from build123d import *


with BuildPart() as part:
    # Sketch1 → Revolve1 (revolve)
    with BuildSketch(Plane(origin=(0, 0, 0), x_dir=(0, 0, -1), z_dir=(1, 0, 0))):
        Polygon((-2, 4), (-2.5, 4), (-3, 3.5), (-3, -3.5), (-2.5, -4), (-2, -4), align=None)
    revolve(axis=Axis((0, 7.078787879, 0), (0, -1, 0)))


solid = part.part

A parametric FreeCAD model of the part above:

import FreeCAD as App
import Part
import Sketcher
from FreeCAD import Vector

doc = App.newDocument("Part")
body = doc.addObject("PartDesign::Body", "Body")

sketch1 = body.newObject("Sketcher::SketchObject", "Sketch")
sketch1.AttachmentSupport = (doc.getObject("YZ_Plane"), [""])
sketch1.MapMode = "FlatFace"
sketch1.addGeometry([
    Part.LineSegment(Vector(4, 2, 0), Vector(4, 2.5, 0)),
    Part.LineSegment(Vector(4, 2.5, 0), Vector(3.5, 3, 0)),
    Part.LineSegment(Vector(3.5, 3, 0), Vector(-3.5, 3, 0)),
    Part.LineSegment(Vector(-3.5, 3, 0), Vector(-4, 2.5, 0)),
    Part.LineSegment(Vector(-4, 2.5, 0), Vector(-4, 2, 0)),
    Part.LineSegment(Vector(-4, 2, 0), Vector(4, 2, 0)),
], False)
sketch1.addConstraint([
    Sketcher.Constraint("Coincident", 0, 2, 1, 1),
    Sketcher.Constraint("Coincident", 1, 2, 2, 1),
    Sketcher.Constraint("Coincident", 2, 2, 3, 1),
    Sketcher.Constraint("Coincident", 3, 2, 4, 1),
    Sketcher.Constraint("Coincident", 4, 2, 5, 1),
    Sketcher.Constraint("Coincident", 5, 2, 0, 1),
    Sketcher.Constraint("Vertical", 0),
    Sketcher.Constraint("Horizontal", 2),
    Sketcher.Constraint("Vertical", 4),
    Sketcher.Constraint("Horizontal", 5),
    Sketcher.Constraint("Symmetric", 0, 2, 3, 2, -2),
    Sketcher.Constraint("Perpendicular", 1, 3),
    Sketcher.Constraint("Equal", 1, 3),
    Sketcher.Constraint("DistanceX", 2, 2, 2, 1, 7.0),
    Sketcher.Constraint("DistanceX", 5, 1, 5, 2, 8.0),
    Sketcher.Constraint("DistanceY", 0, 1, 0, 2, 0.5),
    Sketcher.Constraint("DistanceY", -1, 1, 1, 2, 3.0),
])
revolution = body.newObject("PartDesign::Revolution", "Revolution")
revolution.Profile = sketch1
revolution.ReferenceAxis = (sketch1, ["H_Axis"])
revolution.Angle = 360

doc.recompute()
